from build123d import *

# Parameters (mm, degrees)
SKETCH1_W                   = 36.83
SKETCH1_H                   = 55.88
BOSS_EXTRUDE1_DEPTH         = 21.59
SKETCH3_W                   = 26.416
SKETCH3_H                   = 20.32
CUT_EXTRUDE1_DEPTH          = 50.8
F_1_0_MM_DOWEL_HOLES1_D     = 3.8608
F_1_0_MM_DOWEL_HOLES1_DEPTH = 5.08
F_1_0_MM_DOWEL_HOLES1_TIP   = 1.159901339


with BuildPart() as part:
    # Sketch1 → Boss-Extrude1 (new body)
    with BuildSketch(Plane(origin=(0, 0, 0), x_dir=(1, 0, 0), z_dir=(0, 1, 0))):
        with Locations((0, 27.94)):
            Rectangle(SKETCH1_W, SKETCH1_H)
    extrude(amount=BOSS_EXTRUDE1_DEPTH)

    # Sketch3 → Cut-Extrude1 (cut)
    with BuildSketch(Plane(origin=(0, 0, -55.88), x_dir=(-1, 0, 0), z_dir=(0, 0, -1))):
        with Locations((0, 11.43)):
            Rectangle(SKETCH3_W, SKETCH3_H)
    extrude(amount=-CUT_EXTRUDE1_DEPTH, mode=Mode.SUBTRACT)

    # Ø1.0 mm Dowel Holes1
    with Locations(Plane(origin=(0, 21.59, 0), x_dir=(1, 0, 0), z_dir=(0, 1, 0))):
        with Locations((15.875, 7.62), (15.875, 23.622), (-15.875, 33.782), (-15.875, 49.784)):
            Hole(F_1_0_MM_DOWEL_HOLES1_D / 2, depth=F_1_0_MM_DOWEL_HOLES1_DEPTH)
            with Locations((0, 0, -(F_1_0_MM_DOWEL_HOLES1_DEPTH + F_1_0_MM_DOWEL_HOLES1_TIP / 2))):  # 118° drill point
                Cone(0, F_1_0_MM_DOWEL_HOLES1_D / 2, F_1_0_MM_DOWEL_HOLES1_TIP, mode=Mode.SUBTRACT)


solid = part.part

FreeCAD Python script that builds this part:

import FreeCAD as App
import Part
import Sketcher

V = App.Vector
Q = App.Units.Quantity

doc = App.newDocument("Part")
body = doc.addObject("PartDesign::Body", "Body")

sketch1 = body.newObject("Sketcher::SketchObject", "Sketch")
sketch1.AttachmentSupport = (doc.getObject("XZ_Plane"), [""])
sketch1.MapMode = "FlatFace"
sketch1.addGeometry(Part.LineSegment(V(-18.415, -55.88, 0), V(-18.415, 0, 0)), False)
sketch1.addGeometry(Part.LineSegment(V(-18.415, 0, 0), V(18.415, 0, 0)), False)
sketch1.addGeometry(Part.LineSegment(V(18.415, 0, 0), V(18.415, -55.88, 0)), False)
sketch1.addGeometry(Part.LineSegment(V(18.415, -55.88, 0), V(-18.415, -55.88, 0)), False)
sketch1.addConstraint(Sketcher.Constraint("Coincident", 0, 2, 1, 1))
sketch1.addConstraint(Sketcher.Constraint("Coincident", 1, 2, 2, 1))
sketch1.addConstraint(Sketcher.Constraint("Coincident", 2, 2, 3, 1))
sketch1.addConstraint(Sketcher.Constraint("Coincident", 3, 2, 0, 1))
sketch1.addConstraint(Sketcher.Constraint("Vertical", 0))
sketch1.addConstraint(Sketcher.Constraint("Horizontal", 1))
sketch1.addConstraint(Sketcher.Constraint("Vertical", 2))
sketch1.addConstraint(Sketcher.Constraint("Horizontal", 3))
sketch1.addConstraint(Sketcher.Constraint("Symmetric", 0, 2, 1, 2, -1, 1))
sketch1.addConstraint(Sketcher.Constraint("DistanceY", 0, 1, 0, 2, Q("2.2 in")))
sketch1.addConstraint(Sketcher.Constraint("DistanceX", 1, 1, 1, 2, Q("1.45 in")))
pad1 = body.newObject("PartDesign::Pad", "Pad")
pad1.Profile = sketch1
pad1.Length = Q("0.85 in")
pad1.Reversed = True

sketch2 = body.newObject("Sketcher::SketchObject", "Sketch001")
sketch2.AttachmentSupport = (doc.getObject("XY_Plane"), [""])
sketch2.MapMode = "FlatFace"
sketch2.AttachmentOffset = App.Placement(V(0, 0, -2.2 * 25.4), App.Rotation())
sketch2.addGeometry(Part.LineSegment(V(13.208, 21.59, 0), V(13.208, 1.27, 0)), False)
sketch2.addGeometry(Part.LineSegment(V(13.208, 1.27, 0), V(-13.208, 1.27, 0)), False)
sketch2.addGeometry(Part.LineSegment(V(-13.208, 1.27, 0), V(-13.208, 21.59, 0)), False)
sketch2.addGeometry(Part.LineSegment(V(-13.208, 21.59, 0), V(13.208, 21.59, 0)), False)
sketch2.addConstraint(Sketcher.Constraint("Coincident", 0, 2, 1, 1))
sketch2.addConstraint(Sketcher.Constraint("Coincident", 1, 2, 2, 1))
sketch2.addConstraint(Sketcher.Constraint("Coincident", 2, 2, 3, 1))
sketch2.addConstraint(Sketcher.Constraint("Coincident", 3, 2, 0, 1))
sketch2.addConstraint(Sketcher.Constraint("Vertical", 0))
sketch2.addConstraint(Sketcher.Constraint("Horizontal", 1))
sketch2.addConstraint(Sketcher.Constraint("Vertical", 2))
sketch2.addConstraint(Sketcher.Constraint("Horizontal", 3))
sketch2.addConstraint(Sketcher.Constraint("DistanceY", 0, 2, 0, 1, Q("0.8 in")))
sketch2.addConstraint(Sketcher.Constraint("DistanceX", 1, 2, 1, 1, Q("1.04 in")))
sketch2.addConstraint(Sketcher.Constraint("DistanceX", -1, 1, 0, 2, Q("0.52 in")))
sketch2.addConstraint(Sketcher.Constraint("DistanceY", -1, 1, 0, 2, Q("0.05 in")))
pocket1 = body.newObject("PartDesign::Pocket", "Pocket")
pocket1.Profile = sketch2
pocket1.Length = Q("2 in")
pocket1.Reversed = True

sketch3 = body.newObject("Sketcher::SketchObject", "Sketch002")
sketch3.AttachmentSupport = (doc.getObject("XZ_Plane"), [""])
sketch3.MapMode = "FlatFace"
sketch3.AttachmentOffset = App.Placement(V(0, 0, -0.85 * 25.4), App.Rotation())
sketch3.addGeometry(Part.Circle(V(15.875, -7.62, 0), V(0, 0, 1), 1.9304), False)
sketch3.addGeometry(Part.Circle(V(15.875, -23.622, 0), V(0, 0, 1), 1.9304), False)
sketch3.addGeometry(Part.Circle(V(-15.875, -33.782, 0), V(0, 0, 1), 1.9304), False)
sketch3.addGeometry(Part.Circle(V(-15.875, -49.784, 0), V(0, 0, 1), 1.9304), False)
sketch3.addConstraint(Sketcher.Constraint("Equal", 0, 1))
sketch3.addConstraint(Sketcher.Constraint("Equal", 1, 2))
sketch3.addConstraint(Sketcher.Constraint("Equal", 2, 3))
sketch3.addConstraint(Sketcher.Constraint("Vertical", 0, 3, 1, 3))
sketch3.addConstraint(Sketcher.Constraint("Vertical", 2, 3, 3, 3))
sketch3.addConstraint(Sketcher.Constraint("Diameter", 0, Q("0.152 in")))
sketch3.addConstraint(Sketcher.Constraint("DistanceY", 0, 3, -1, 1, Q("0.3 in")))
sketch3.addConstraint(Sketcher.Constraint("DistanceY", 2, 3, 1, 3, Q("0.4 in")))
sketch3.addConstraint(Sketcher.Constraint("DistanceY", 1, 3, -1, 1, Q("0.93 in")))
sketch3.addConstraint(Sketcher.Constraint("DistanceY", 3, 3, -1, 1, Q("1.96 in")))
sketch3.addConstraint(Sketcher.Constraint("DistanceX", 2, 3, 1, 3, Q("1.25 in")))
sketch3.addConstraint(Sketcher.Constraint("DistanceX", -1, 1, 0, 3, Q("0.625 in")))
doc.recompute()
hole = body.newObject("PartDesign::Hole", "Hole")
hole.Profile = sketch3
hole.ThreadType = "None"
hole.Diameter = Q("0.152 in")
hole.DepthType = "Dimension"
hole.Depth = Q("0.2 in")
hole.DrillPoint = "Angled"
hole.DrillPointAngle = 118
hole.Reversed = True

doc.recompute()
